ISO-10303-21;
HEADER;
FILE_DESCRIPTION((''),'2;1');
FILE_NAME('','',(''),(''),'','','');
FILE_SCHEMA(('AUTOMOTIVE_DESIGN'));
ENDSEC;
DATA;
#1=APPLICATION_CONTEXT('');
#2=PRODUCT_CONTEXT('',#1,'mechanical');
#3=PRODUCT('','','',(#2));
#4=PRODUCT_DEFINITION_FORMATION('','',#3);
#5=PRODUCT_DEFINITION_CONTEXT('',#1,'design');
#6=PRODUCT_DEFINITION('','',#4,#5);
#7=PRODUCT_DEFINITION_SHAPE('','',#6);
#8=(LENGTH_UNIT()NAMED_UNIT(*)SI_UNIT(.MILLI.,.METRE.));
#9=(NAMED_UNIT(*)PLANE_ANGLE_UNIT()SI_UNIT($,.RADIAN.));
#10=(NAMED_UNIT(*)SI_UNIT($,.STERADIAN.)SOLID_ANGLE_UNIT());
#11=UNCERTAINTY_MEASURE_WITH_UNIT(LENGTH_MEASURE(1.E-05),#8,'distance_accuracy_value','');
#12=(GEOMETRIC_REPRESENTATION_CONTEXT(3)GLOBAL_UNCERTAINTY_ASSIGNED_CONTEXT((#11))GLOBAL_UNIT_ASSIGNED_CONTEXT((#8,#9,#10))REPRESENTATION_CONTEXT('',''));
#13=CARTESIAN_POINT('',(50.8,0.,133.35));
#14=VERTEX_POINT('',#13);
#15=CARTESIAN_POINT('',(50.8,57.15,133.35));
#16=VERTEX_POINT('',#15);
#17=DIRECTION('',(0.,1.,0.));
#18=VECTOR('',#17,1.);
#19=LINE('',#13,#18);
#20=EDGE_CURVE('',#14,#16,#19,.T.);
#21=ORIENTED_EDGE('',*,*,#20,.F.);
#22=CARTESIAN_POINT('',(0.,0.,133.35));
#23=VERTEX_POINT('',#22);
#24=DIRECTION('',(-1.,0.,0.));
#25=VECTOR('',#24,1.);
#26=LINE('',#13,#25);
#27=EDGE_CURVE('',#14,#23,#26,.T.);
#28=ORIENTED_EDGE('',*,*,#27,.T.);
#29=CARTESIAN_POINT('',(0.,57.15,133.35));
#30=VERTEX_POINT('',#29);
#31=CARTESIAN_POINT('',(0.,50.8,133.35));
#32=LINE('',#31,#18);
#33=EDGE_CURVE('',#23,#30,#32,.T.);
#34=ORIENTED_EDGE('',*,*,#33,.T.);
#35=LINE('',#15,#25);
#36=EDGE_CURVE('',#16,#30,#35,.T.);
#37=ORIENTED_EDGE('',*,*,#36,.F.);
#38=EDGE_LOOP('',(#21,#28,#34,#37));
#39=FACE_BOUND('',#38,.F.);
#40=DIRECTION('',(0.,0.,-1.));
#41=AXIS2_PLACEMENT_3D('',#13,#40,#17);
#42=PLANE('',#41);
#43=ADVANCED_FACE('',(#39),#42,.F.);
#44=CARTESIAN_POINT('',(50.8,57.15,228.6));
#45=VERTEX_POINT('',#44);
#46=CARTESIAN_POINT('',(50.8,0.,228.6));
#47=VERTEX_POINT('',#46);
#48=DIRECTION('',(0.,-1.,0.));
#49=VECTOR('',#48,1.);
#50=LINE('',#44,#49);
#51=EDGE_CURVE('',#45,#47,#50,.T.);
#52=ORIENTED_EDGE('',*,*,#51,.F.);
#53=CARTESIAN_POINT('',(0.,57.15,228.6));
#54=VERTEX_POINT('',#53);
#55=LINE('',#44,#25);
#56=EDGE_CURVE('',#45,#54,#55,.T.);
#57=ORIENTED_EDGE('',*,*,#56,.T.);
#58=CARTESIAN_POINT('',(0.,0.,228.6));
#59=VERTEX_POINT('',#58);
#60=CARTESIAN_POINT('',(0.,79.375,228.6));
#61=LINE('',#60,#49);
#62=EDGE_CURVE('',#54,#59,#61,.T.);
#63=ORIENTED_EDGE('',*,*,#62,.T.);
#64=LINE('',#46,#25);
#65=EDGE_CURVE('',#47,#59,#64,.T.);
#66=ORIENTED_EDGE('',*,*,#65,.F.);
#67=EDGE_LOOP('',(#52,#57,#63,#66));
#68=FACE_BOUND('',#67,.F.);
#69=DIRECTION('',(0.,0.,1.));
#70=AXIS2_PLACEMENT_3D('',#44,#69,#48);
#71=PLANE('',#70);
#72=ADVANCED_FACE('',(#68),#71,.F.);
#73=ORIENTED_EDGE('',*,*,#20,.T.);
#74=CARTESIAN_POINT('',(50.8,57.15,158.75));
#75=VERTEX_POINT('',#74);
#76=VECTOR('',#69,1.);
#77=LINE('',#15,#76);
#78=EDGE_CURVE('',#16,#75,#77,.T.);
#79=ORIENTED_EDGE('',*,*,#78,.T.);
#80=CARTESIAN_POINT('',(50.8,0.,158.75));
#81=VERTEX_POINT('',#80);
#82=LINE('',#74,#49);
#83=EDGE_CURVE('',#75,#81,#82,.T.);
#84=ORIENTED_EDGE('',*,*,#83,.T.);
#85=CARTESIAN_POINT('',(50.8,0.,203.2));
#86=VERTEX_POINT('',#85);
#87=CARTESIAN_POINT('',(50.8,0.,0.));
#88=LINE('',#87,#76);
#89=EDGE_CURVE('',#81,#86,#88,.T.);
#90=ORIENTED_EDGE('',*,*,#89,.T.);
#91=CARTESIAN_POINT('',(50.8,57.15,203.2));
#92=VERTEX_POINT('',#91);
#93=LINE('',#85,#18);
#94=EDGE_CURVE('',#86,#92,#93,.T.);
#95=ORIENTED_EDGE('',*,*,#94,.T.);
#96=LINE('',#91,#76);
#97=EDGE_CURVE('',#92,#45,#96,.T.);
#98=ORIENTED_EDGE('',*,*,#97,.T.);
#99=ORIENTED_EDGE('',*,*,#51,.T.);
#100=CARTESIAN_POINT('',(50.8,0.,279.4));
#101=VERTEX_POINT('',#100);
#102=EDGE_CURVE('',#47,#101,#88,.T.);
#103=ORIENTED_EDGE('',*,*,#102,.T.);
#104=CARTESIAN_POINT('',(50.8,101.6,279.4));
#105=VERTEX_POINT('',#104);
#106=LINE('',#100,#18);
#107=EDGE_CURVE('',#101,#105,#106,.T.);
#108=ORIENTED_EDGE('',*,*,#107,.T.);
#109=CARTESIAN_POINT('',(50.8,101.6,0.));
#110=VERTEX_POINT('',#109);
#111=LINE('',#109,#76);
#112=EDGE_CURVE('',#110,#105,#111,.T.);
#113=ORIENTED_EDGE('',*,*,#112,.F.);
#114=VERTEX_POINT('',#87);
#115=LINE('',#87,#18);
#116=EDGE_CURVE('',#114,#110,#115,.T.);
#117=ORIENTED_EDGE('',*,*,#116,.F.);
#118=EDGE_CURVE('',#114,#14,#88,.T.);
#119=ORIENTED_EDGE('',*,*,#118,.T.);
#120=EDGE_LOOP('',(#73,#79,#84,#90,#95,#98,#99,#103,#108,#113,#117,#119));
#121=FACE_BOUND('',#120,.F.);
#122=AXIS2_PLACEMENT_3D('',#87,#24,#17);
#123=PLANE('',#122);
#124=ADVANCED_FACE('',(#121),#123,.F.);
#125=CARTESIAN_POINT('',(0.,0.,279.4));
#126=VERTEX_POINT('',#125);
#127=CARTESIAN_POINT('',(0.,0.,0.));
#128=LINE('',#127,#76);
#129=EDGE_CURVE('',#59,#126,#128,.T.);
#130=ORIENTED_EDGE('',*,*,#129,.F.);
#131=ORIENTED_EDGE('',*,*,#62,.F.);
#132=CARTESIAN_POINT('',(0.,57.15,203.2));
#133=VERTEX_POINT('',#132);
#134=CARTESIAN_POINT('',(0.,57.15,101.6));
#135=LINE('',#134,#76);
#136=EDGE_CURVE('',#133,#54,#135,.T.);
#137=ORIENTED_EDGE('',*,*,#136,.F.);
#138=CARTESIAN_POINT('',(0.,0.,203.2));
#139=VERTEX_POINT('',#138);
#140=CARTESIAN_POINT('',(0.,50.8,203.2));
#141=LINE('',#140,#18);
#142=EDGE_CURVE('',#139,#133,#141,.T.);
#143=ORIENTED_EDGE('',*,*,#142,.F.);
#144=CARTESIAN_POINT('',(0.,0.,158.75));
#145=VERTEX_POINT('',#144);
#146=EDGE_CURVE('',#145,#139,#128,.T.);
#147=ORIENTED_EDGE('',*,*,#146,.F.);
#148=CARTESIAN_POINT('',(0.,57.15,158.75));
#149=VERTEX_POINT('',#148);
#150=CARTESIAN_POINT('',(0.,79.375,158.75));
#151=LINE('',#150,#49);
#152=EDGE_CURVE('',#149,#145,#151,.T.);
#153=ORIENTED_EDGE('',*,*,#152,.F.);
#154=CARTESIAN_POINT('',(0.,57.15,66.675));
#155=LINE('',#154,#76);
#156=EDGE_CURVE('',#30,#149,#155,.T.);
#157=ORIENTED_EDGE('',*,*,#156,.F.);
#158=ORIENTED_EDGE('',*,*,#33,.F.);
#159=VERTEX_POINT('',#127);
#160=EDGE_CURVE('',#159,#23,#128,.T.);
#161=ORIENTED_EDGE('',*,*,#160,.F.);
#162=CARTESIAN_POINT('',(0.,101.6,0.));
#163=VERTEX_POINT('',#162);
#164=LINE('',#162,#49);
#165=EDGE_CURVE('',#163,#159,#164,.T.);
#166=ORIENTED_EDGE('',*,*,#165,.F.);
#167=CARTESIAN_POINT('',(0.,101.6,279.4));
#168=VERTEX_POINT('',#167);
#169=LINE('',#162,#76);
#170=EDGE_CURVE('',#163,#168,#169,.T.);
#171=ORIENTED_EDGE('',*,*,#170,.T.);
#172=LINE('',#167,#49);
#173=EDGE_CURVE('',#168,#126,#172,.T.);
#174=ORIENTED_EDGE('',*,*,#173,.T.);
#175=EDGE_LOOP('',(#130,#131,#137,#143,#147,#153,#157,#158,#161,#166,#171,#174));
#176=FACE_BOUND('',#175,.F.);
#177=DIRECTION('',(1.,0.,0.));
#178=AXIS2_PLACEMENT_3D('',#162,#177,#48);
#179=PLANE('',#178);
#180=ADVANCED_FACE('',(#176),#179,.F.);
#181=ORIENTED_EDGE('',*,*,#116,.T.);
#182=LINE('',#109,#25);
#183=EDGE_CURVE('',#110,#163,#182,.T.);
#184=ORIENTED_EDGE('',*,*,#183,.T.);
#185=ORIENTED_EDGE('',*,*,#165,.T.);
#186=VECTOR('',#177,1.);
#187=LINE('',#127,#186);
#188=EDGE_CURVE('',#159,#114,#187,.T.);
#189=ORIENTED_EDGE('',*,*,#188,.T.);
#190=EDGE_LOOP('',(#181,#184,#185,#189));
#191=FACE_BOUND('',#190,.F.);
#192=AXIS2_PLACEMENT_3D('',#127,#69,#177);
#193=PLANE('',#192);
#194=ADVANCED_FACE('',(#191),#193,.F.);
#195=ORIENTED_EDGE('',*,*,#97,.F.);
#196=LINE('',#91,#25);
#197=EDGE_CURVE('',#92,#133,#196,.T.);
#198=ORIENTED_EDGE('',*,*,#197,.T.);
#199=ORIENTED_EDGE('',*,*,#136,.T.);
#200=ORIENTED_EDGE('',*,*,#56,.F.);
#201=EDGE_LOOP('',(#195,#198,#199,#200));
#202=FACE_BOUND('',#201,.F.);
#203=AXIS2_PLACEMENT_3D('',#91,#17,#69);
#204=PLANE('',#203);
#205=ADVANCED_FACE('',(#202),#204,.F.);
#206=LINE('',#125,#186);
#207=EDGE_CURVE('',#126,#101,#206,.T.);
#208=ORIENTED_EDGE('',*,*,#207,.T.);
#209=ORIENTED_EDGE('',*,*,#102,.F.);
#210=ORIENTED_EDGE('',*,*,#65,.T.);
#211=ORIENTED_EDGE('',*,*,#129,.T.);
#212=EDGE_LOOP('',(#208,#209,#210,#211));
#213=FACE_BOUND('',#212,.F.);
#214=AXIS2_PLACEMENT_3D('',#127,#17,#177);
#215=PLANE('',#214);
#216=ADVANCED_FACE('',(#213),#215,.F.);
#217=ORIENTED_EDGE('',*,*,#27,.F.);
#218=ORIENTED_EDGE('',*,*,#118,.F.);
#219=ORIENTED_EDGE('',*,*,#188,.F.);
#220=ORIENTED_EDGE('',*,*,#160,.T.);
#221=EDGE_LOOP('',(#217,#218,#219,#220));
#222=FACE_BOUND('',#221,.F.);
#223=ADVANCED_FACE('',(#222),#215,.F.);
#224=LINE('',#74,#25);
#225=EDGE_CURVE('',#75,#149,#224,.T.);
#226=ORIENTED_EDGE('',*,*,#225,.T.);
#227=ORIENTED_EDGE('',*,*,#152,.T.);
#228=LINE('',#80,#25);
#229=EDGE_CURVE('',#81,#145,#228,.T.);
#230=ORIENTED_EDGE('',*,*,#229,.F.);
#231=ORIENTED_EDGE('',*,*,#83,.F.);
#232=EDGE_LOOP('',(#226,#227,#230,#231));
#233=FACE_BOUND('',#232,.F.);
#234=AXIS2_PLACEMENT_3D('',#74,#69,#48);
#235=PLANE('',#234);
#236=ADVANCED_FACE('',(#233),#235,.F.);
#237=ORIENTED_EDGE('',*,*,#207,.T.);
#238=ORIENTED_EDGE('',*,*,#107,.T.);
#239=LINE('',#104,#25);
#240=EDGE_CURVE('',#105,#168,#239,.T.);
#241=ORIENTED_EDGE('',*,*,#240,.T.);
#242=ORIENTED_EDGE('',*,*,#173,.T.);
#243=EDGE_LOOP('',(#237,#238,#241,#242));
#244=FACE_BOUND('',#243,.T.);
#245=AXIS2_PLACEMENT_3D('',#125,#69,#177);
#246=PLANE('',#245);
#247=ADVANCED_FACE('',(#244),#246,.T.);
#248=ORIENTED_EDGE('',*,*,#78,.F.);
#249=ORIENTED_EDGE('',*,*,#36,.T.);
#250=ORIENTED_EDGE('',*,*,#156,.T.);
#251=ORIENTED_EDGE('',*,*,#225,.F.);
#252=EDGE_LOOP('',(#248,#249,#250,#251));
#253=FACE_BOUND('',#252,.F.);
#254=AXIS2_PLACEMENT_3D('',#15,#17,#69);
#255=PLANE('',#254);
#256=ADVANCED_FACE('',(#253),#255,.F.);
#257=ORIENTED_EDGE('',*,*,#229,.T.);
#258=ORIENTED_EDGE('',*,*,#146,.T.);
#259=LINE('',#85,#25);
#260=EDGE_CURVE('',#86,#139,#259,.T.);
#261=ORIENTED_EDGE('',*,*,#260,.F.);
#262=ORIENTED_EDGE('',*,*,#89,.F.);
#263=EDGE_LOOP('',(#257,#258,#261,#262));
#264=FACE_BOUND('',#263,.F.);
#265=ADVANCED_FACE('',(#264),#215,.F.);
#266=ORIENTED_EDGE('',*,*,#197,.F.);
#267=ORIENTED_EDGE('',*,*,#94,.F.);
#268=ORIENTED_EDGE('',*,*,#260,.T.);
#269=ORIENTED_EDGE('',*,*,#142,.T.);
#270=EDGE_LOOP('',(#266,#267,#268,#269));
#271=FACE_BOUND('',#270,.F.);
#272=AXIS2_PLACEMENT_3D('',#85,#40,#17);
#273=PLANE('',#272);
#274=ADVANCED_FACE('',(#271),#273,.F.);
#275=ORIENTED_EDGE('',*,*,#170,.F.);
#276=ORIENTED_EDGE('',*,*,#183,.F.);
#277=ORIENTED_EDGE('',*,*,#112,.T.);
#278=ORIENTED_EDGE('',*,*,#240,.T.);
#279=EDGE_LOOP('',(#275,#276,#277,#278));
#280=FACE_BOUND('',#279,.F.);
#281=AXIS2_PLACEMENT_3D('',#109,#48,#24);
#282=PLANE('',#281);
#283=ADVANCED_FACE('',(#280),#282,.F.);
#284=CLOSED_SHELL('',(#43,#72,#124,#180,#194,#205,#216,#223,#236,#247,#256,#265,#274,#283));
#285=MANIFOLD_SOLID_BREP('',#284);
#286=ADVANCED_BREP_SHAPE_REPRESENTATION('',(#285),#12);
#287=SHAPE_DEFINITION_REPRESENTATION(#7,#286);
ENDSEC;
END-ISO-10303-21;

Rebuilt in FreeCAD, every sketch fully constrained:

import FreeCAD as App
import Part
import Sketcher
Q = App.Units.Quantity


def add_polygon(sketch, points):
    """Adds a closed chain of lines whose ends are joined by coincident constraints."""
    first, n = sketch.GeometryCount, len(points)
    for a, b in zip(points, points[1:] + points[:1]):
        sketch.addGeometry(Part.LineSegment(App.Vector(*a, 0), App.Vector(*b, 0)), False)
    for i in range(n):
        sketch.addConstraint(Sketcher.Constraint("Coincident", first + i, 2, first + (i + 1) % n, 1))

doc = App.newDocument("Part")
params = doc.addObject("Spreadsheet::Sheet", "Params")
for row, (alias, value) in enumerate([
    ("sketch1_width", "2 in"),
    ("sketch1_height", "4 in"),
    ("pad1_length", "11 in"),
    ("sketch2_height", "1 in"),
    ("sketch2_width", "2.25 in"),
    ("pocket1_length", "10.5 in"),
], start=1):
    params.set(f"A{row}", alias)
    params.set(f"B{row}", "=" + value)
    params.setAlias(f"B{row}", alias)

body = doc.addObject("PartDesign::Body", "Body")

# Sketch on XY plane
sketch1 = body.newObject("Sketcher::SketchObject", "Sketch")
sketch1.AttachmentSupport = (doc.getObject("XY_Plane"), [""])
sketch1.MapMode = "FlatFace"
add_polygon(sketch1, [(0, 102), (0, 0), (51, 0), (51, 102)])  # lines 0-3
sketch1.addConstraint(Sketcher.Constraint("Vertical", 0))
sketch1.addConstraint(Sketcher.Constraint("Horizontal", 1))
sketch1.addConstraint(Sketcher.Constraint("Vertical", 2))
sketch1.addConstraint(Sketcher.Constraint("Horizontal", 3))
sketch1.addConstraint(Sketcher.Constraint("Coincident", 0, 2, -1, 1))
sketch1.addConstraint(Sketcher.Constraint("DistanceX", 1, 1, 1, 2, Q("2 in")))
sketch1.addConstraint(Sketcher.Constraint("DistanceY", 0, 2, 0, 1, Q("4 in")))
sketch1.setExpression("Constraints[9]", "Params.sketch1_width")
sketch1.setExpression("Constraints[10]", "Params.sketch1_height")
pad1 = body.newObject("PartDesign::Pad", "Pad")
pad1.Profile = sketch1
pad1.setExpression("Length", "Params.pad1_length")

# Sketch on YZ plane
sketch2 = body.newObject("Sketcher::SketchObject", "Sketch001")
sketch2.AttachmentSupport = (doc.getObject("YZ_Plane"), [""])
sketch2.MapMode = "FlatFace"
sketch2.AttachmentOffset = App.Placement(App.Vector(0, 0, 2 * 25.4), App.Rotation())
add_polygon(sketch2, [(0, 229), (0, 203), (57, 203), (57, 229)])  # lines 0-3
add_polygon(sketch2, [(0, 159), (0, 133), (57, 133), (57, 159)])  # lines 4-7
sketch2.addConstraint(Sketcher.Constraint("Vertical", 0))
sketch2.addConstraint(Sketcher.Constraint("Horizontal", 1))
sketch2.addConstraint(Sketcher.Constraint("Vertical", 2))
sketch2.addConstraint(Sketcher.Constraint("Horizontal", 3))
sketch2.addConstraint(Sketcher.Constraint("Vertical", 4))
sketch2.addConstraint(Sketcher.Constraint("Horizontal", 5))
sketch2.addConstraint(Sketcher.Constraint("Vertical", 6))
sketch2.addConstraint(Sketcher.Constraint("Horizontal", 7))
sketch2.addConstraint(Sketcher.Constraint("PointOnObject", 0, 2, -2))
sketch2.addConstraint(Sketcher.Constraint("PointOnObject", 4, 2, -2))
sketch2.addConstraint(Sketcher.Constraint("Vertical", 2, 2, 5, 2))
sketch2.addConstraint(Sketcher.Constraint("Equal", 2, 4))
sketch2.addConstraint(Sketcher.Constraint("DistanceY", 0, 2, 0, 1, Q("1 in")))
sketch2.addConstraint(Sketcher.Constraint("DistanceX", 1, 1, 1, 2, Q("2.25 in")))
sketch2.addConstraint(Sketcher.Constraint("DistanceY", 6, 2, 1, 2, Q("1.75 in")))
sketch2.addConstraint(Sketcher.Constraint("DistanceY", -1, 1, 0, 2, Q("8 in")))
sketch2.setExpression("Constraints[20]", "Params.sketch2_height")
sketch2.setExpression("Constraints[21]", "Params.sketch2_width")
pocket1 = body.newObject("PartDesign::Pocket", "Pocket")
pocket1.Profile = sketch2
pocket1.setExpression("Length", "Params.pocket1_length")

doc.recompute()
